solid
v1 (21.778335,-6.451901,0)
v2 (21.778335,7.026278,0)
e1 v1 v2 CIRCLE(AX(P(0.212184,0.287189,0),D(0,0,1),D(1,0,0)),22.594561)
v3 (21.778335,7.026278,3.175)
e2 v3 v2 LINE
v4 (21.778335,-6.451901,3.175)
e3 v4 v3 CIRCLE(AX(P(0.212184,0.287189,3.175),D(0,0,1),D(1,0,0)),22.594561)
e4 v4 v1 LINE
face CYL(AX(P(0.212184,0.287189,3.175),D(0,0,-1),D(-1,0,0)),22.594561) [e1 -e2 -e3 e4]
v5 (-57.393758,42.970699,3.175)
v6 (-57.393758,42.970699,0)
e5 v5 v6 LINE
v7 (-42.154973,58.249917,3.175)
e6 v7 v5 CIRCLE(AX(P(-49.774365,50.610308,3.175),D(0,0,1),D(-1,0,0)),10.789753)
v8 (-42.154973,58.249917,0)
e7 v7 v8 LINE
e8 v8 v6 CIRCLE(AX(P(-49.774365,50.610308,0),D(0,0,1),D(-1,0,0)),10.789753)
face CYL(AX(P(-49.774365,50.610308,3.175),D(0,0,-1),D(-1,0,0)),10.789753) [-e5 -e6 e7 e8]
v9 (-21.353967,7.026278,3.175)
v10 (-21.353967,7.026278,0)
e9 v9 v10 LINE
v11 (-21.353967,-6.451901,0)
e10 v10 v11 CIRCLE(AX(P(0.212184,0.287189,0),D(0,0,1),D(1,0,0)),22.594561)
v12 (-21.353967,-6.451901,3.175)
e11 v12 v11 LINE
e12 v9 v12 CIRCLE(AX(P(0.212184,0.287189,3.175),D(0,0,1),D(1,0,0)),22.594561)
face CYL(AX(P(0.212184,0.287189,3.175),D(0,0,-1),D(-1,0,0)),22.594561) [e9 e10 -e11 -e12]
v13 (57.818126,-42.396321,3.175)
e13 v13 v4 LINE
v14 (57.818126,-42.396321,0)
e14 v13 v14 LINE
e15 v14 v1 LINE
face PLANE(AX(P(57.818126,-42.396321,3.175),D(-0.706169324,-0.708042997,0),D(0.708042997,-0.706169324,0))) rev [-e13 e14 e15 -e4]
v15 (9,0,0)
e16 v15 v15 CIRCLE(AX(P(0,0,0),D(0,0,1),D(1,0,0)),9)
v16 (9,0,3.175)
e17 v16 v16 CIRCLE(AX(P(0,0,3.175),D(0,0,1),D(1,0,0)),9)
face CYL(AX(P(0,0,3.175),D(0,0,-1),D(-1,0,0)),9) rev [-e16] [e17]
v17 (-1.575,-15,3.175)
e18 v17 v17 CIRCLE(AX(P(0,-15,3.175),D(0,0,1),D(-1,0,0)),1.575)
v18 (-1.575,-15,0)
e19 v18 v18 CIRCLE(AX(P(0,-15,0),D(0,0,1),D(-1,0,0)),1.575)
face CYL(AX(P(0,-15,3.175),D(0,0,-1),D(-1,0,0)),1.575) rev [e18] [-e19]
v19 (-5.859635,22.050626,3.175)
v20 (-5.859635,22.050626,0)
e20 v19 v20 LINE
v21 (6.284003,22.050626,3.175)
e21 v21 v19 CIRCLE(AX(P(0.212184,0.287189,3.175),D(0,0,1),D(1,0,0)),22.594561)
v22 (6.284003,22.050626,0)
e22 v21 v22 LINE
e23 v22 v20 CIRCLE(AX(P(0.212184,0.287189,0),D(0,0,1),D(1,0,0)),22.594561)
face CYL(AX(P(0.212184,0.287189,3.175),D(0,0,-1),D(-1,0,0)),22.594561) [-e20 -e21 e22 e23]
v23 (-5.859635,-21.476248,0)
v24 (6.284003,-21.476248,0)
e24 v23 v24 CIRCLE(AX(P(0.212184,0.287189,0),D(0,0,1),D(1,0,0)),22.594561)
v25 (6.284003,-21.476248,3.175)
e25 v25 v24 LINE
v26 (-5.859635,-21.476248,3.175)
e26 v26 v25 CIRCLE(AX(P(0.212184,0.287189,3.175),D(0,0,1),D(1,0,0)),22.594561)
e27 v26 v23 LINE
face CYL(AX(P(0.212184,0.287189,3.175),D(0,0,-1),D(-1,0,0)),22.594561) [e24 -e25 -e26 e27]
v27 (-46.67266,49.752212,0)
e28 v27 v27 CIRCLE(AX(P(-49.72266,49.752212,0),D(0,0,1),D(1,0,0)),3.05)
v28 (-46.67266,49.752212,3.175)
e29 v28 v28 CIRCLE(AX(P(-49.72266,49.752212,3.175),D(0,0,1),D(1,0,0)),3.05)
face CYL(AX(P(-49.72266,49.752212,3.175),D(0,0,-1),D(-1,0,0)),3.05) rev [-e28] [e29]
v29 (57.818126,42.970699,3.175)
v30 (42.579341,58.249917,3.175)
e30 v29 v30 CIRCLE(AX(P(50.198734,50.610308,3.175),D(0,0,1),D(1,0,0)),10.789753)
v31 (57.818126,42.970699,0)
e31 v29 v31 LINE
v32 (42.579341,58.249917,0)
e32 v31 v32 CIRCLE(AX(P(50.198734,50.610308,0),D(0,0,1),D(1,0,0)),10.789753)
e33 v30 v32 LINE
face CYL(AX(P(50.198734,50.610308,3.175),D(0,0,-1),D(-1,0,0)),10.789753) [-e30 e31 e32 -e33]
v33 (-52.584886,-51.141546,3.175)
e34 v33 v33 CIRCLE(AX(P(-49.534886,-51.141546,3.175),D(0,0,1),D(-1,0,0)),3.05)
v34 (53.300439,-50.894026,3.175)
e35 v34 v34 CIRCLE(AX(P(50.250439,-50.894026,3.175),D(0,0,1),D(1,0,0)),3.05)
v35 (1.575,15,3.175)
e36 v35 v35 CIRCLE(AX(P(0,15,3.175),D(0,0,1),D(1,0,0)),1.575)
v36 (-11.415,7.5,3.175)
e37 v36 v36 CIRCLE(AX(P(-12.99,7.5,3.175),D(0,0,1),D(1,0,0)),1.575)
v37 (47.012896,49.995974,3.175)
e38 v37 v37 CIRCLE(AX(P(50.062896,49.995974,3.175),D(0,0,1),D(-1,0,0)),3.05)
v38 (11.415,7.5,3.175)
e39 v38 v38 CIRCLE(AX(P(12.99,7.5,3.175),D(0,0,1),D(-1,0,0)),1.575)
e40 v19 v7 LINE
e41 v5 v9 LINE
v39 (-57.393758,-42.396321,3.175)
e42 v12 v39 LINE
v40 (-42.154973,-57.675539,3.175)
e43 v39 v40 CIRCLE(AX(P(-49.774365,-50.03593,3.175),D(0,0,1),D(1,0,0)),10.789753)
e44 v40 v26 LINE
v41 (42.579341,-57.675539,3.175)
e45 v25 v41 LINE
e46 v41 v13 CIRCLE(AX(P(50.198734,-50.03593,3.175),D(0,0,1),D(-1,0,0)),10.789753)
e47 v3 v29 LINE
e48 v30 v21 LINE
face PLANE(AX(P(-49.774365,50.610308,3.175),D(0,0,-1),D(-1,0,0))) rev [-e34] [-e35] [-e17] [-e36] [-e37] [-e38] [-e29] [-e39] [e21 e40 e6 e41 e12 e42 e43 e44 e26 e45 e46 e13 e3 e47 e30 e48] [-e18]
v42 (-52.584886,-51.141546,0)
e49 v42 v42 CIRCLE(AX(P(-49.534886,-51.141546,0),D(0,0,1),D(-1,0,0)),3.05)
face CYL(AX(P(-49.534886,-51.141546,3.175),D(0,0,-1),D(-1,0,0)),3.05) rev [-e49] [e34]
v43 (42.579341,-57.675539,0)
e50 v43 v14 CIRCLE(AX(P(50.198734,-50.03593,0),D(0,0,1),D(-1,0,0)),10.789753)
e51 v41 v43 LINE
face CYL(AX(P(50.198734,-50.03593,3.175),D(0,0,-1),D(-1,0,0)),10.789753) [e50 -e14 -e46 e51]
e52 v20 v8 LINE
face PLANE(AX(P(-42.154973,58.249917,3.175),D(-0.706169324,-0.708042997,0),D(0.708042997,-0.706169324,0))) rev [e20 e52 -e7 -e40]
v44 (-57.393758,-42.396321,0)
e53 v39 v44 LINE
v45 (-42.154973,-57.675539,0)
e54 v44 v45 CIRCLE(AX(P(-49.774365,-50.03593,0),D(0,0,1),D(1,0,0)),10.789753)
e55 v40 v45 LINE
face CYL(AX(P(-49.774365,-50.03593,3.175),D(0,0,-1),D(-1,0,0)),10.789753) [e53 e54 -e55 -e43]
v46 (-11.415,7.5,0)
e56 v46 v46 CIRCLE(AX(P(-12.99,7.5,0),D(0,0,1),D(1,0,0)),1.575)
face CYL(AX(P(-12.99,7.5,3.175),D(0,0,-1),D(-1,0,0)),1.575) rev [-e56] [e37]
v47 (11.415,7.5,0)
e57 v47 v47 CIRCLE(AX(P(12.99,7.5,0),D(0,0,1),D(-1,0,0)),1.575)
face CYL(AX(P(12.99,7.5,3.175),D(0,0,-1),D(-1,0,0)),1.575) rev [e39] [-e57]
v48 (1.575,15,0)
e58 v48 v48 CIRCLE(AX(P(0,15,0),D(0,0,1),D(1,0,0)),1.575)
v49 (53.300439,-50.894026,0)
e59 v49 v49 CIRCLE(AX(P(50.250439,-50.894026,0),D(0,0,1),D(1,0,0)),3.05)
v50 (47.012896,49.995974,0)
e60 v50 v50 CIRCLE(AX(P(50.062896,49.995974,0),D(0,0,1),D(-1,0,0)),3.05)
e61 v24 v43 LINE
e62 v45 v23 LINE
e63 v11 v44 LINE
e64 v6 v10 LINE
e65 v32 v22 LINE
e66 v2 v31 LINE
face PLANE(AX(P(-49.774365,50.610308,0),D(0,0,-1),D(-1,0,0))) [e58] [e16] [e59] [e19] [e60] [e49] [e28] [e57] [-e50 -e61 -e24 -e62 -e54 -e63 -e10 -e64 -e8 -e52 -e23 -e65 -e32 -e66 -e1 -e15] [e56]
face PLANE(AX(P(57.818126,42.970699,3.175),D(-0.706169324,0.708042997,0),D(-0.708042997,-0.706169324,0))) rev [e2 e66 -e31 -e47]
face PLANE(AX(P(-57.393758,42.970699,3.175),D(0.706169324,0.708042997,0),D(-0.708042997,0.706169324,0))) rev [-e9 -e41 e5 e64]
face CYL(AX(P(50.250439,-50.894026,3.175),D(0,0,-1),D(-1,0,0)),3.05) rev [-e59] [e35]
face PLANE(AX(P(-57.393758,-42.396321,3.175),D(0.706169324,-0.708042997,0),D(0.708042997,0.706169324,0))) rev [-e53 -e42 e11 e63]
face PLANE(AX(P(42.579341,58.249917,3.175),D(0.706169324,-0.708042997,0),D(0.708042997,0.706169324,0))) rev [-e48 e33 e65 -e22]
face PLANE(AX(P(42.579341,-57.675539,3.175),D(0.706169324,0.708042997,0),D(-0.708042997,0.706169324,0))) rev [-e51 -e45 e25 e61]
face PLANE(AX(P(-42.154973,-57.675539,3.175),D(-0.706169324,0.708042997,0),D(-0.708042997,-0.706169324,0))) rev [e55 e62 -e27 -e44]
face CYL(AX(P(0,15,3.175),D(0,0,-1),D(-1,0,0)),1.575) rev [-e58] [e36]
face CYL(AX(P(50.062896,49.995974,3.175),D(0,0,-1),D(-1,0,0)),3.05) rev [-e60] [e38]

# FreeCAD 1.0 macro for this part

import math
import FreeCAD as App
import Part
import Sketcher

V = App.Vector
Q = App.Units.Quantity

doc = App.newDocument("Part")
body = doc.addObject("PartDesign::Body", "Body")

sketch1 = doc.addObject("Sketcher::SketchObject", "Sketch")
body.addObject(sketch1)
sketch1.AttachmentSupport = (doc.XY_Plane, [""])
sketch1.MapMode = "FlatFace"
sketch1.addGeometry([
    Part.LineSegment(V(-57.4, 43, 0), V(-21.4, 7, 0)),
    Part.ArcOfCircle(Part.Circle(V(0.2, 0.3, 0), V(0, 0, 1), 22.6), math.radians(163), math.radians(197)),
    Part.LineSegment(V(-21.4, -6.5, 0), V(-57.4, -42.4, 0)),
    Part.ArcOfCircle(Part.Circle(V(-49.8, -50, 0), V(0, 0, 1), 10.8), math.radians(135), math.radians(315)),
    Part.LineSegment(V(-42.2, -57.7, 0), V(-5.9, -21.5, 0)),
    Part.ArcOfCircle(Part.Circle(V(0.2, 0.3, 0), V(0, 0, 1), 22.6), math.radians(-106), math.radians(-74)),
    Part.LineSegment(V(6.3, -21.5, 0), V(42.6, -57.7, 0)),
    Part.ArcOfCircle(Part.Circle(V(50.2, -50, 0), V(0, 0, 1), 10.8), math.radians(-135), math.radians(45)),
    Part.LineSegment(V(57.8, -42.4, 0), V(21.8, -6.5, 0)),
    Part.ArcOfCircle(Part.Circle(V(0.2, 0.3, 0), V(0, 0, 1), 22.6), math.radians(-17), math.radians(17)),
    Part.LineSegment(V(21.8, 7, 0), V(57.8, 43, 0)),
    Part.ArcOfCircle(Part.Circle(V(50.2, 50.6, 0), V(0, 0, 1), 10.8), math.radians(-45), math.radians(135)),
    Part.LineSegment(V(42.6, 58.2, 0), V(6.3, 22.1, 0)),
    Part.ArcOfCircle(Part.Circle(V(0.2, 0.3, 0), V(0, 0, 1), 22.6), math.radians(74), math.radians(106)),
    Part.LineSegment(V(-5.9, 22.1, 0), V(-42.2, 58.2, 0)),
    Part.ArcOfCircle(Part.Circle(V(-49.8, 50.6, 0), V(0, 0, 1), 10.8), math.radians(45), math.radians(225)),
    Part.Circle(V(-49.5, -51.1, 0), V(0, 0, 1), 3),
    Part.Circle(V(0, -15, 0), V(0, 0, 1), 1.6),
    Part.Circle(V(50.3, -50.9, 0), V(0, 0, 1), 3),
    Part.Circle(V(0, 0, 0), V(0, 0, 1), 9),
    Part.Circle(V(-13, 7.5, 0), V(0, 0, 1), 1.6),
    Part.Circle(V(0, 15, 0), V(0, 0, 1), 1.6),
    Part.Circle(V(-49.7, 49.8, 0), V(0, 0, 1), 3),
    Part.Circle(V(13, 7.5, 0), V(0, 0, 1), 1.6),
    Part.Circle(V(50.1, 50, 0), V(0, 0, 1), 3),
], False)
sketch1.addConstraint([
    Sketcher.Constraint("Coincident", 0, 2, 1, 1),
    Sketcher.Constraint("Coincident", 1, 2, 2, 1),
    Sketcher.Constraint("Tangent", 2, 2, 3, 1),
    Sketcher.Constraint("Tangent", 3, 2, 4, 1),
    Sketcher.Constraint("Coincident", 4, 2, 5, 1),
    Sketcher.Constraint("Coincident", 5, 2, 6, 1),
    Sketcher.Constraint("Tangent", 6, 2, 7, 1),
    Sketcher.Constraint("Tangent", 7, 2, 8, 1),
    Sketcher.Constraint("Coincident", 8, 2, 9, 1),
    Sketcher.Constraint("Coincident", 9, 2, 10, 1),
    Sketcher.Constraint("Tangent", 10, 2, 11, 1),
    Sketcher.Constraint("Tangent", 11, 2, 12, 1),
    Sketcher.Constraint("Coincident", 12, 2, 13, 1),
    Sketcher.Constraint("Coincident", 13, 2, 14, 1),
    Sketcher.Constraint("Tangent", 14, 2, 15, 1),
    Sketcher.Constraint("Tangent", 15, 2, 0, 1),
    Sketcher.Constraint("Coincident", 19, 3, -1, 1),
    Sketcher.Constraint("Coincident", 5, 3, 1, 3),
    Sketcher.Constraint("Coincident", 9, 3, 1, 3),
    Sketcher.Constraint("Coincident", 13, 3, 1, 3),
    Sketcher.Constraint("Equal", 1, 5),
    Sketcher.Constraint("Equal", 3, 7),
    Sketcher.Constraint("Equal", 5, 9),
    Sketcher.Constraint("Equal", 7, 11),
    Sketcher.Constraint("Equal", 9, 13),
    Sketcher.Constraint("Equal", 11, 15),
    Sketcher.Constraint("Equal", 16, 18),
    Sketcher.Constraint("Equal", 17, 20),
    Sketcher.Constraint("Equal", 20, 21),
    Sketcher.Constraint("Equal", 18, 22),
    Sketcher.Constraint("Equal", 21, 23),
    Sketcher.Constraint("Equal", 22, 24),
    Sketcher.Constraint("Symmetric", 17, 3, 21, 3, -1, 1),
    Sketcher.Constraint("Symmetric", 20, 3, 23, 3, -2),
    Sketcher.Constraint("PointOnObject", 17, 3, -2),
    Sketcher.Constraint("Parallel", 2, 4),
    Sketcher.Constraint("Parallel", 0, 6),
    Sketcher.Constraint("Parallel", 6, 8),
    Sketcher.Constraint("Parallel", 4, 10),
    Sketcher.Constraint("Parallel", 10, 12),
    Sketcher.Constraint("Parallel", 8, 14),
    Sketcher.Constraint("Horizontal", 3, 3, 7, 3),
    Sketcher.Constraint("Horizontal", 11, 3, 15, 3),
    Sketcher.Constraint("Horizontal", 4, 2, 5, 2),
    Sketcher.Constraint("Horizontal", 3, 2, 6, 2),
    Sketcher.Constraint("Horizontal", 0, 2, 9, 2),
    Sketcher.Constraint("Vertical", 7, 3, 11, 3),
    Sketcher.Constraint("Vertical", 0, 2, 1, 2),
    Sketcher.Constraint("Diameter", 19, Q("18 mm")),
    Sketcher.Constraint("Diameter", 16, Q("6.1 mm")),
    Sketcher.Constraint("Diameter", 17, Q("3.15 mm")),
    Sketcher.Constraint("DistanceY", 17, 3, -1, 1, Q("15 mm")),
    Sketcher.Constraint("DistanceY", -1, 1, 20, 3, Q("7.5 mm")),
    Sketcher.Constraint("DistanceX", 20, 3, -1, 1, Q("12.99 mm")),
    Sketcher.Constraint("Radius", 1, Q("22.594561 mm")),
    Sketcher.Constraint("Radius", 3, Q("10.789753 mm")),
    Sketcher.Constraint("DistanceY", 1, 2, -1, 1, Q("6.451901 mm")),
    Sketcher.Constraint("DistanceY", -1, 1, 10, 2, Q("42.970699 mm")),
    Sketcher.Constraint("DistanceX", 3, 3, 7, 3, Q("99.973099 mm")),
    Sketcher.Constraint("DistanceX", 6, 2, 18, 3, Q("7.671098 mm")),
    Sketcher.Constraint("DistanceX", 15, 2, 22, 3, Q("7.671098 mm")),
    Sketcher.Constraint("Distance", 0, Q("50.900569 mm")),
    Sketcher.Constraint("DistanceX", -1, 1, 18, 3, Q("50.250439 mm")),
    Sketcher.Constraint("DistanceY", -1, 1, 22, 3, Q("49.752212 mm")),
    Sketcher.Constraint("DistanceX", 3, 3, 16, 3, Q("0.239479 mm")),
    Sketcher.Constraint("DistanceX", 5, 3, 24, 3, Q("49.850712 mm")),
    Sketcher.Constraint("DistanceY", 16, 3, -1, 1, Q("51.141546 mm")),
    Sketcher.Constraint("DistanceY", 18, 3, -1, 1, Q("50.894026 mm")),
    Sketcher.Constraint("DistanceY", -1, 1, 24, 3, Q("49.995974 mm")),
])
pad1 = doc.addObject("PartDesign::Pad", "Pad")
body.addObject(pad1)
pad1.Profile = sketch1
pad1.Length = 3.175

doc.recompute()
